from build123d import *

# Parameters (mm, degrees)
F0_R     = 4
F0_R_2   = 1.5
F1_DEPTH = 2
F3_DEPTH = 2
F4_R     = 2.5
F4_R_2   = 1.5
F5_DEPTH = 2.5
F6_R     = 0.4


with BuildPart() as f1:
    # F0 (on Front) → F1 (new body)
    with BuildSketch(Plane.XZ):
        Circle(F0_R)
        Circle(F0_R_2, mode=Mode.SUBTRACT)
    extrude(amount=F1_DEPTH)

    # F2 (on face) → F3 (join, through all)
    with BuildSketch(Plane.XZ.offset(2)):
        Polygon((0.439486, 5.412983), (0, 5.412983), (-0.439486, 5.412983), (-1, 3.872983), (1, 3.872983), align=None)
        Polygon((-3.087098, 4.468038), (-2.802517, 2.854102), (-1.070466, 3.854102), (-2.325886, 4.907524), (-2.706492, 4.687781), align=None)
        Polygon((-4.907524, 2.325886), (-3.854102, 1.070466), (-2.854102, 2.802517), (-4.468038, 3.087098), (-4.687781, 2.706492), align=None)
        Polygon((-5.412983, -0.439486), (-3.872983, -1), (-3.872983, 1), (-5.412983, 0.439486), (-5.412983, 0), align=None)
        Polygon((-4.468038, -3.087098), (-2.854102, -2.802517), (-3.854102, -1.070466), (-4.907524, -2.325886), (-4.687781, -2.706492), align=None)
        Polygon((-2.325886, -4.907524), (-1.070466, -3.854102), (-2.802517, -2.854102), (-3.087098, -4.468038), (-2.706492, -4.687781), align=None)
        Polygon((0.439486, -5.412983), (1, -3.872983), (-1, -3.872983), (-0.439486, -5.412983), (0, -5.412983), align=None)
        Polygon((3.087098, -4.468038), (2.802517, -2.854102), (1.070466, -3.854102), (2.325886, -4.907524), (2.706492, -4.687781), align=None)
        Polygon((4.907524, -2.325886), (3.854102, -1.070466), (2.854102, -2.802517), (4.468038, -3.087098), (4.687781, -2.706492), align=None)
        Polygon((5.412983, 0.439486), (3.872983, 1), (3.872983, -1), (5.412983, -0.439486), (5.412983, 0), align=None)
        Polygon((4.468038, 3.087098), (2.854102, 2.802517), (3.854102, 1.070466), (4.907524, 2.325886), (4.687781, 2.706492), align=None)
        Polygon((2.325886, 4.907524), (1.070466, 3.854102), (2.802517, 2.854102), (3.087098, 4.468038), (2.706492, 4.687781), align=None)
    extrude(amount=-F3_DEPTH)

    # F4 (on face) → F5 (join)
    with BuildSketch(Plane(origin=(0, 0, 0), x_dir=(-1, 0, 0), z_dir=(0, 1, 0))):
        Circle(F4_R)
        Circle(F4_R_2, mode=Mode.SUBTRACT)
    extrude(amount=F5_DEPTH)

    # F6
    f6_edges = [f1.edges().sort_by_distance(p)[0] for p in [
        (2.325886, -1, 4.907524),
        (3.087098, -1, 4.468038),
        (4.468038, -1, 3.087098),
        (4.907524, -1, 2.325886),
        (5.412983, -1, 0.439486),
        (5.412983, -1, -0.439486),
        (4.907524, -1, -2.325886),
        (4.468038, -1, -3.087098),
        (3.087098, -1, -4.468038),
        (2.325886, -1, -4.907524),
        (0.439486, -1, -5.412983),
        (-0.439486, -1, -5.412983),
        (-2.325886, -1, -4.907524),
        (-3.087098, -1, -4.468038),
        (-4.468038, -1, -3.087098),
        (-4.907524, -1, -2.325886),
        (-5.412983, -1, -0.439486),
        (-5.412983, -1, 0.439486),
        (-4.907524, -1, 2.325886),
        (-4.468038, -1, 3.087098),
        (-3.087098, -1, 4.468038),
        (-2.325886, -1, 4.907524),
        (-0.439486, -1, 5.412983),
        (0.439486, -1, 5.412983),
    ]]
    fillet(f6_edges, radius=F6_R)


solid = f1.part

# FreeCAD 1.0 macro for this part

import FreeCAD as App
import Part
import Sketcher

V = App.Vector
Q = App.Units.Quantity


def edges_at(feature, points):
    """Names of the edges that pass closest to the given points."""
    edges = feature.Shape.Edges
    near = lambda p: min(range(len(edges)), key=lambda i: edges[i].distToShape(Part.Vertex(*p))[0])
    return sorted({f"Edge{near(p) + 1}" for p in points})

doc = App.newDocument("Part")
body = doc.addObject("PartDesign::Body", "Body")

sketch1 = body.newObject("Sketcher::SketchObject", "Sketch")
sketch1.AttachmentSupport = (doc.getObject("XZ_Plane"), [""])
sketch1.MapMode = "FlatFace"
sketch1.addGeometry([
    Part.Circle(V(0, 0, 0), V(0, 0, 1), 4),
    Part.Circle(V(0, 0, 0), V(0, 0, 1), 1.5),
], False)
sketch1.addConstraint([
    Sketcher.Constraint("Coincident", 0, 3, -1, 1),
    Sketcher.Constraint("Coincident", 1, 3, -1, 1),
    Sketcher.Constraint("Diameter", 0, Q("8 mm")),
    Sketcher.Constraint("Diameter", 1, Q("3 mm")),
])
pad1 = body.newObject("PartDesign::Pad", "Pad")
pad1.Profile = sketch1
pad1.Length = 2

sketch2 = body.newObject("Sketcher::SketchObject", "Sketch001")
sketch2.AttachmentSupport = (doc.getObject("XZ_Plane"), [""])
sketch2.MapMode = "FlatFace"
sketch2.AttachmentOffset = App.Placement(V(0, 0, 2), App.Rotation())
sketch2.addGeometry([
    Part.LineSegment(V(0.4, 5.4, 0), V(-0.4, 5.4, 0)),
    Part.LineSegment(V(-0.4, 5.4, 0), V(-1, 3.9, 0)),
    Part.LineSegment(V(-1, 3.9, 0), V(1, 3.9, 0)),
    Part.LineSegment(V(1, 3.9, 0), V(0.4, 5.4, 0)),
    Part.LineSegment(V(-3.1, 4.5, 0), V(-2.8, 2.9, 0)),
    Part.LineSegment(V(-2.8, 2.9, 0), V(-1.1, 3.9, 0)),
    Part.LineSegment(V(-1.1, 3.9, 0), V(-2.3, 4.9, 0)),
    Part.LineSegment(V(-2.3, 4.9, 0), V(-3.1, 4.5, 0)),
    Part.LineSegment(V(-4.9, 2.3, 0), V(-3.9, 1.1, 0)),
    Part.LineSegment(V(-3.9, 1.1, 0), V(-2.9, 2.8, 0)),
    Part.LineSegment(V(-2.9, 2.8, 0), V(-4.5, 3.1, 0)),
    Part.LineSegment(V(-4.5, 3.1, 0), V(-4.9, 2.3, 0)),
    Part.LineSegment(V(-5.4, -0.4, 0), V(-3.9, -1, 0)),
    Part.LineSegment(V(-3.9, -1, 0), V(-3.9, 1, 0)),
    Part.LineSegment(V(-3.9, 1, 0), V(-5.4, 0.4, 0)),
    Part.LineSegment(V(-5.4, 0.4, 0), V(-5.4, -0.4, 0)),
    Part.LineSegment(V(-4.5, -3.1, 0), V(-2.9, -2.8, 0)),
    Part.LineSegment(V(-2.9, -2.8, 0), V(-3.9, -1.1, 0)),
    Part.LineSegment(V(-3.9, -1.1, 0), V(-4.9, -2.3, 0)),
    Part.LineSegment(V(-4.9, -2.3, 0), V(-4.5, -3.1, 0)),
    Part.LineSegment(V(-2.3, -4.9, 0), V(-1.1, -3.9, 0)),
    Part.LineSegment(V(-1.1, -3.9, 0), V(-2.8, -2.9, 0)),
    Part.LineSegment(V(-2.8, -2.9, 0), V(-3.1, -4.5, 0)),
    Part.LineSegment(V(-3.1, -4.5, 0), V(-2.3, -4.9, 0)),
    Part.LineSegment(V(0.4, -5.4, 0), V(1, -3.9, 0)),
    Part.LineSegment(V(1, -3.9, 0), V(-1, -3.9, 0)),
    Part.LineSegment(V(-1, -3.9, 0), V(-0.4, -5.4, 0)),
    Part.LineSegment(V(-0.4, -5.4, 0), V(0.4, -5.4, 0)),
    Part.LineSegment(V(3.1, -4.5, 0), V(2.8, -2.9, 0)),
    Part.LineSegment(V(2.8, -2.9, 0), V(1.1, -3.9, 0)),
    Part.LineSegment(V(1.1, -3.9, 0), V(2.3, -4.9, 0)),
    Part.LineSegment(V(2.3, -4.9, 0), V(3.1, -4.5, 0)),
    Part.LineSegment(V(4.9, -2.3, 0), V(3.9, -1.1, 0)),
    Part.LineSegment(V(3.9, -1.1, 0), V(2.9, -2.8, 0)),
    Part.LineSegment(V(2.9, -2.8, 0), V(4.5, -3.1, 0)),
    Part.LineSegment(V(4.5, -3.1, 0), V(4.9, -2.3, 0)),
    Part.LineSegment(V(5.4, 0.4, 0), V(3.9, 1, 0)),
    Part.LineSegment(V(3.9, 1, 0), V(3.9, -1, 0)),
    Part.LineSegment(V(3.9, -1, 0), V(5.4, -0.4, 0)),
    Part.LineSegment(V(5.4, -0.4, 0), V(5.4, 0.4, 0)),
    Part.LineSegment(V(4.5, 3.1, 0), V(2.9, 2.8, 0)),
    Part.LineSegment(V(2.9, 2.8, 0), V(3.9, 1.1, 0)),
    Part.LineSegment(V(3.9, 1.1, 0), V(4.9, 2.3, 0)),
    Part.LineSegment(V(4.9, 2.3, 0), V(4.5, 3.1, 0)),
    Part.LineSegment(V(2.3, 4.9, 0), V(1.1, 3.9, 0)),
    Part.LineSegment(V(1.1, 3.9, 0), V(2.8, 2.9, 0)),
    Part.LineSegment(V(2.8, 2.9, 0), V(3.1, 4.5, 0)),
    Part.LineSegment(V(3.1, 4.5, 0), V(2.3, 4.9, 0)),
], False)
sketch2.addConstraint([
    Sketcher.Constraint("Coincident", 0, 2, 1, 1),
    Sketcher.Constraint("Coincident", 1, 2, 2, 1),
    Sketcher.Constraint("Coincident", 2, 2, 3, 1),
    Sketcher.Constraint("Coincident", 3, 2, 0, 1),
    Sketcher.Constraint("Coincident", 4, 2, 5, 1),
    Sketcher.Constraint("Coincident", 5, 2, 6, 1),
    Sketcher.Constraint("Coincident", 6, 2, 7, 1),
    Sketcher.Constraint("Coincident", 7, 2, 4, 1),
    Sketcher.Constraint("Coincident", 8, 2, 9, 1),
    Sketcher.Constraint("Coincident", 9, 2, 10, 1),
    Sketcher.Constraint("Coincident", 10, 2, 11, 1),
    Sketcher.Constraint("Coincident", 11, 2, 8, 1),
    Sketcher.Constraint("Coincident", 12, 2, 13, 1),
    Sketcher.Constraint("Coincident", 13, 2, 14, 1),
    Sketcher.Constraint("Coincident", 14, 2, 15, 1),
    Sketcher.Constraint("Coincident", 15, 2, 12, 1),
    Sketcher.Constraint("Coincident", 16, 2, 17, 1),
    Sketcher.Constraint("Coincident", 17, 2, 18, 1),
    Sketcher.Constraint("Coincident", 18, 2, 19, 1),
    Sketcher.Constraint("Coincident", 19, 2, 16, 1),
    Sketcher.Constraint("Coincident", 20, 2, 21, 1),
    Sketcher.Constraint("Coincident", 21, 2, 22, 1),
    Sketcher.Constraint("Coincident", 22, 2, 23, 1),
    Sketcher.Constraint("Coincident", 23, 2, 20, 1),
    Sketcher.Constraint("Coincident", 24, 2, 25, 1),
    Sketcher.Constraint("Coincident", 25, 2, 26, 1),
    Sketcher.Constraint("Coincident", 26, 2, 27, 1),
    Sketcher.Constraint("Coincident", 27, 2, 24, 1),
    Sketcher.Constraint("Coincident", 28, 2, 29, 1),
    Sketcher.Constraint("Coincident", 29, 2, 30, 1),
    Sketcher.Constraint("Coincident", 30, 2, 31, 1),
    Sketcher.Constraint("Coincident", 31, 2, 28, 1),
    Sketcher.Constraint("Coincident", 32, 2, 33, 1),
    Sketcher.Constraint("Coincident", 33, 2, 34, 1),
    Sketcher.Constraint("Coincident", 34, 2, 35, 1),
    Sketcher.Constraint("Coincident", 35, 2, 32, 1),
    Sketcher.Constraint("Coincident", 36, 2, 37, 1),
    Sketcher.Constraint("Coincident", 37, 2, 38, 1),
    Sketcher.Constraint("Coincident", 38, 2, 39, 1),
    Sketcher.Constraint("Coincident", 39, 2, 36, 1),
    Sketcher.Constraint("Coincident", 40, 2, 41, 1),
    Sketcher.Constraint("Coincident", 41, 2, 42, 1),
    Sketcher.Constraint("Coincident", 42, 2, 43, 1),
    Sketcher.Constraint("Coincident", 43, 2, 40, 1),
    Sketcher.Constraint("Coincident", 44, 2, 45, 1),
    Sketcher.Constraint("Coincident", 45, 2, 46, 1),
    Sketcher.Constraint("Coincident", 46, 2, 47, 1),
    Sketcher.Constraint("Coincident", 47, 2, 44, 1),
    Sketcher.Constraint("Horizontal", 0),
    Sketcher.Constraint("Horizontal", 2),
    Sketcher.Constraint("Vertical", 13),
    Sketcher.Constraint("Vertical", 15),
    Sketcher.Constraint("Horizontal", 25),
    Sketcher.Constraint("Horizontal", 27),
    Sketcher.Constraint("Vertical", 37),
    Sketcher.Constraint("Vertical", 39),
    Sketcher.Constraint("Symmetric", 1, 2, 24, 2, -1, 1),
    Sketcher.Constraint("Symmetric", 3, 2, 26, 2, -1, 1),
    Sketcher.Constraint("Symmetric", 4, 2, 28, 2, -1, 1),
    Sketcher.Constraint("Symmetric", 5, 2, 29, 2, -1, 1),
    Sketcher.Constraint("Symmetric", 6, 2, 30, 2, -1, 1),
    Sketcher.Constraint("Symmetric", 7, 2, 31, 2, -1, 1),
    Sketcher.Constraint("Symmetric", 8, 2, 32, 2, -1, 1),
    Sketcher.Constraint("Symmetric", 9, 2, 33, 2, -1, 1),
    Sketcher.Constraint("Symmetric", 10, 2, 34, 2, -1, 1),
    Sketcher.Constraint("Symmetric", 11, 2, 35, 2, -1, 1),
    Sketcher.Constraint("Symmetric", 12, 2, 36, 2, -1, 1),
    Sketcher.Constraint("Symmetric", 14, 2, 38, 2, -1, 1),
    Sketcher.Constraint("Symmetric", 16, 2, 40, 2, -1, 1),
    Sketcher.Constraint("Symmetric", 17, 2, 41, 2, -1, 1),
    Sketcher.Constraint("Symmetric", 18, 2, 42, 2, -1, 1),
    Sketcher.Constraint("Symmetric", 19, 2, 43, 2, -1, 1),
    Sketcher.Constraint("Symmetric", 20, 2, 44, 2, -1, 1),
    Sketcher.Constraint("Symmetric", 21, 2, 45, 2, -1, 1),
    Sketcher.Constraint("Symmetric", 22, 2, 46, 2, -1, 1),
    Sketcher.Constraint("Symmetric", 23, 2, 47, 2, -1, 1),
    Sketcher.Constraint("Symmetric", 21, 2, 28, 2, -2),
    Sketcher.Constraint("Symmetric", 20, 2, 29, 2, -2),
    Sketcher.Constraint("Symmetric", 23, 2, 30, 2, -2),
    Sketcher.Constraint("Symmetric", 22, 2, 31, 2, -2),
    Sketcher.Constraint("Symmetric", 17, 2, 32, 2, -2),
    Sketcher.Constraint("Symmetric", 16, 2, 33, 2, -2),
    Sketcher.Constraint("Symmetric", 19, 2, 34, 2, -2),
    Sketcher.Constraint("Symmetric", 18, 2, 35, 2, -2),
    Sketcher.Constraint("Parallel", 5, 7),
    Sketcher.Constraint("Parallel", 9, 11),
    Sketcher.Constraint("Perpendicular", 1, 12),
    Sketcher.Constraint("Perpendicular", 3, 14),
    Sketcher.Constraint("Perpendicular", 4, 16),
    Sketcher.Constraint("Perpendicular", 7, 17),
    Sketcher.Constraint("Perpendicular", 6, 18),
    Sketcher.Constraint("Perpendicular", 12, 24),
    Sketcher.Constraint("Perpendicular", 14, 26),
    Sketcher.Constraint("Perpendicular", 24, 36),
    Sketcher.Constraint("Perpendicular", 26, 38),
    Sketcher.Constraint("Horizontal", 13, 2, 36, 2),
    Sketcher.Constraint("Horizontal", 15, 2, 38, 2),
    Sketcher.Constraint("Vertical", 2, 2, 24, 2),
    Sketcher.Constraint("Equal", 25, 13),
    Sketcher.Constraint("Equal", 27, 15),
    Sketcher.Constraint("Equal", 3, 4),
    Sketcher.Constraint("Equal", 4, 6),
    Sketcher.Constraint("Equal", 6, 8),
    Sketcher.Constraint("Equal", 5, 9),
    Sketcher.Constraint("DistanceX", 2, 1, 2, 2, Q("2 mm")),
    Sketcher.Constraint("Angle", 1, Q("-109.999995 deg")),
    Sketcher.Constraint("Angle", 4, Q("-79.999981 deg")),
    Sketcher.Constraint("Angle", 5, Q("29.999997 deg")),
    Sketcher.Constraint("Distance", 5, Q("2 mm")),
    Sketcher.Constraint("DistanceY", 1, 2, 0, 2, Q("1.54 mm")),
    Sketcher.Constraint("DistanceX", 7, 2, -1, 1, Q("3.087098 mm")),
    Sketcher.Constraint("DistanceY", -1, 1, 10, 2, Q("3.087098 mm")),
    Sketcher.Constraint("DistanceY", 4, 2, 1, 2, Q("1.018881 mm")),
    Sketcher.Constraint("DistanceY", 8, 2, 6, 2, Q("3.837058 mm")),
    Sketcher.Constraint("DistanceX", 10, 2, 4, 2, Q("1.665521 mm")),
    Sketcher.Constraint("DistanceX", 12, 2, 8, 2, Q("0.018881 mm")),
])
pad2 = body.newObject("PartDesign::Pad", "Pad001")
pad2.Profile = sketch2
pad2.Length = 2
pad2.Reversed = True

sketch3 = body.newObject("Sketcher::SketchObject", "Sketch002")
sketch3.AttachmentSupport = (doc.getObject("XZ_Plane"), [""])
sketch3.MapMode = "FlatFace"
sketch3.addGeometry([
    Part.Circle(V(0, 0, 0), V(0, 0, 1), 2.5),
    Part.Circle(V(0, 0, 0), V(0, 0, 1), 1.5),
], False)
sketch3.addConstraint([
    Sketcher.Constraint("Coincident", 0, 3, -1, 1),
    Sketcher.Constraint("Coincident", 1, 3, -1, 1),
    Sketcher.Constraint("Diameter", 0, Q("5 mm")),
    Sketcher.Constraint("Diameter", 1, Q("3 mm")),
])
pad3 = body.newObject("PartDesign::Pad", "Pad002")
pad3.Profile = sketch3
pad3.Length = 2.5
pad3.Reversed = True
doc.recompute()

fillet = body.newObject("PartDesign::Fillet", "Fillet")
fillet.Base = (pad3, edges_at(pad3, [
    (2.326, -1, 4.908),
    (3.087, -1, 4.468),
    (4.468, -1, 3.087),
    (4.908, -1, 2.326),
    (5.413, -1, 0.439),
    (5.413, -1, -0.439),
    (4.908, -1, -2.326),
    (4.468, -1, -3.087),
    (3.087, -1, -4.468),
    (2.326, -1, -4.908),
    (0.439, -1, -5.413),
    (-0.439, -1, -5.413),
    (-2.326, -1, -4.908),
    (-3.087, -1, -4.468),
    (-4.468, -1, -3.087),
    (-4.908, -1, -2.326),
    (-5.413, -1, -0.439),
    (-5.413, -1, 0.439),
    (-4.908, -1, 2.326),
    (-4.468, -1, 3.087),
    (-3.087, -1, 4.468),
    (-2.326, -1, 4.908),
    (-0.439, -1, 5.413),
    (0.439, -1, 5.413),
]))
fillet.Radius = 0.4

doc.recompute()
